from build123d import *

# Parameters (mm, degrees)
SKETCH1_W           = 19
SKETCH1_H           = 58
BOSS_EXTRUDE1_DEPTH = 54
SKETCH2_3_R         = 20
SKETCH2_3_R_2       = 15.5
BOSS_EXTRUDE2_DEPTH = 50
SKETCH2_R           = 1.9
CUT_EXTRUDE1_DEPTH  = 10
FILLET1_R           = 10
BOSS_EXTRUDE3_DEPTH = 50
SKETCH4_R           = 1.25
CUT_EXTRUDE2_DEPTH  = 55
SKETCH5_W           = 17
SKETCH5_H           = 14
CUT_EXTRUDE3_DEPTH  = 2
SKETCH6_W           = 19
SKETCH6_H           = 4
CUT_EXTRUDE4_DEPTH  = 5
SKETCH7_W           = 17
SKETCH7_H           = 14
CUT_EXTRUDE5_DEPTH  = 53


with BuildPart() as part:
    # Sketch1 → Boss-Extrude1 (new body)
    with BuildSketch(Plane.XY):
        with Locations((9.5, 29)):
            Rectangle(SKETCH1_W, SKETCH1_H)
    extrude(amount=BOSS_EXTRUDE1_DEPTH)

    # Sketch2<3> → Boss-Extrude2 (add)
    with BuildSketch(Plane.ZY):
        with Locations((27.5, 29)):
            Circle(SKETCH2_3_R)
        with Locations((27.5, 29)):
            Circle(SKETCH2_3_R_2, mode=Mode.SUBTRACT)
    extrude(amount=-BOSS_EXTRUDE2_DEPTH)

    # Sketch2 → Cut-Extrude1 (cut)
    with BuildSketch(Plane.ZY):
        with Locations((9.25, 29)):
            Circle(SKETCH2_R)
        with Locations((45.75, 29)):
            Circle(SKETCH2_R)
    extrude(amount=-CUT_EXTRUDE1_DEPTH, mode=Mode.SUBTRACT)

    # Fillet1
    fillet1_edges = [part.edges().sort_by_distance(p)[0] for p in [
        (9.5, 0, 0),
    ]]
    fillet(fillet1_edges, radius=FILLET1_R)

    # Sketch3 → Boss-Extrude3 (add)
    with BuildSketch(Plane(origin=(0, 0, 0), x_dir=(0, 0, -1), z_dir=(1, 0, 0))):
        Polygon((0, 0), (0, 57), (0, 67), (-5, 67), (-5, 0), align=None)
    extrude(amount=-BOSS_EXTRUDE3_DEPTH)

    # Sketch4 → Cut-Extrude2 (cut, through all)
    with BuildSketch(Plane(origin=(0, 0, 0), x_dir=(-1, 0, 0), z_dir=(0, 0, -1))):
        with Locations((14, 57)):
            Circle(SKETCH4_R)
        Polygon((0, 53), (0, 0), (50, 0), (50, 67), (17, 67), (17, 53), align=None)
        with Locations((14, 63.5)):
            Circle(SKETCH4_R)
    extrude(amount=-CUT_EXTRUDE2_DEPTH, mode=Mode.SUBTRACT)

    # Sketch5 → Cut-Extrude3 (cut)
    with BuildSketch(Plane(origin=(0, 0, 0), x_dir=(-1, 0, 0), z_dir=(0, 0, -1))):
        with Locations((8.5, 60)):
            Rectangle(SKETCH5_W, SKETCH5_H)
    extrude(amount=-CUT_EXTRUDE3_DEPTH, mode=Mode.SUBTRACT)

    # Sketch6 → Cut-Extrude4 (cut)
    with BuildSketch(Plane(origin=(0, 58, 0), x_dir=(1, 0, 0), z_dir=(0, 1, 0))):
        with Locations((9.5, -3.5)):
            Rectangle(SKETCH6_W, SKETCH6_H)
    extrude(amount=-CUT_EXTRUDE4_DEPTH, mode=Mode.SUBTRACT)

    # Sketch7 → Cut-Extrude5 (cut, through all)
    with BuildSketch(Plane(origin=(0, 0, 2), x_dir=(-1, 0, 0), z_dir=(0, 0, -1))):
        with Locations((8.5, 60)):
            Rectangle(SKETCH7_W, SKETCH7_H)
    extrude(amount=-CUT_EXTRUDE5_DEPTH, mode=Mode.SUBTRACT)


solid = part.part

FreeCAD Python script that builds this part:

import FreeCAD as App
import Part
import Sketcher
from FreeCAD import Vector


def edges_at(feature, points):
    """Names of the edges that pass closest to the given points."""
    edges = feature.Shape.Edges
    near = lambda p: min(range(len(edges)), key=lambda i: edges[i].distToShape(Part.Vertex(*p))[0])
    return sorted({f"Edge{near(p) + 1}" for p in points})


def add_polygon(sketch, points):
    """Adds a closed chain of lines whose ends are joined by coincident constraints."""
    first, n = sketch.GeometryCount, len(points)
    for a, b in zip(points, points[1:] + points[:1]):
        sketch.addGeometry(Part.LineSegment(App.Vector(*a, 0), App.Vector(*b, 0)), False)
    for i in range(n):
        sketch.addConstraint(Sketcher.Constraint("Coincident", first + i, 2, first + (i + 1) % n, 1))

doc = App.newDocument("Part")
params = doc.addObject("Spreadsheet::Sheet", "Params")
for row, (alias, value) in enumerate([
    ("sketch1_width", "19 mm"),
    ("sketch1_height", "58 mm"),
    ("pad1_length", "54 mm"),
    ("sketch2_diameter", "40 mm"),
    ("sketch2_diameter2", "31 mm"),
    ("pad2_length", "50 mm"),
    ("sketch3_diameter", "3.8 mm"),
    ("pocket1_length", "10 mm"),
    ("fillet_radius", "10 mm"),
    ("sketch4_width", "67 mm"),
    ("sketch4_height", "5 mm"),
    ("pad3_length", "50 mm"),
    ("sketch5_diameter", "2.5 mm"),
    ("sketch5_width", "50 mm"),
    ("sketch5_width2", "33 mm"),
    ("sketch5_height", "53 mm"),
    ("sketch5_height2", "67 mm"),
    ("sketch6_width", "17 mm"),
    ("sketch6_height", "14 mm"),
    ("pocket3_length", "2 mm"),
    ("sketch7_width", "19 mm"),
    ("sketch7_height", "4 mm"),
    ("pocket4_length", "5 mm"),
    ("sketch8_width", "17 mm"),
    ("sketch8_height", "14 mm"),
], start=1):
    params.set(f"A{row}", alias)
    params.set(f"B{row}", "=" + value)
    params.setAlias(f"B{row}", alias)

body = doc.addObject("PartDesign::Body", "Body")
body.AllowCompound = True

# Sketch on XY plane
sketch1 = body.newObject("Sketcher::SketchObject", "Sketch")
sketch1.AttachmentSupport = (doc.getObject("XY_Plane"), [""])
sketch1.MapMode = "FlatFace"
add_polygon(sketch1, [(0, 58), (0, 0), (19, 0), (19, 58)])  # lines 0-3
sketch1.addConstraint([
    Sketcher.Constraint("Vertical", 0),
    Sketcher.Constraint("Horizontal", 1),
    Sketcher.Constraint("Vertical", 2),
    Sketcher.Constraint("Horizontal", 3),
    Sketcher.Constraint("Coincident", 0, 2, -1, 1),
    Sketcher.Constraint("DistanceX", 1, 1, 1, 2, 19.0),
    Sketcher.Constraint("DistanceY", 0, 2, 0, 1, 58.0),
])
sketch1.setExpression("Constraints[9]", "Params.sketch1_width")
sketch1.setExpression("Constraints[10]", "Params.sketch1_height")
pad1 = body.newObject("PartDesign::Pad", "Pad")
pad1.Profile = sketch1
pad1.setExpression("Length", "Params.pad1_length")

# Sketch on YZ plane
sketch2 = body.newObject("Sketcher::SketchObject", "Sketch001")
sketch2.AttachmentSupport = (doc.getObject("YZ_Plane"), [""])
sketch2.MapMode = "FlatFace"
sketch2.addGeometry([
    Part.Circle(Vector(29, 28, 0), Vector(0, 0, 1), 20),
    Part.Circle(Vector(29, 28, 0), Vector(0, 0, 1), 16),
], False)
sketch2.addConstraint([
    Sketcher.Constraint("Coincident", 1, 3, 0, 3),
    Sketcher.Constraint("Diameter", 0, 40.0),
    Sketcher.Constraint("Diameter", 1, 31.0),
    Sketcher.Constraint("DistanceX", -1, 1, 0, 3, 29.0),
    Sketcher.Constraint("DistanceY", -1, 1, 0, 3, 27.5),
])
sketch2.setExpression("Constraints[1]", "Params.sketch2_diameter")
sketch2.setExpression("Constraints[2]", "Params.sketch2_diameter2")
pad2 = body.newObject("PartDesign::Pad", "Pad001")
pad2.Profile = sketch2
pad2.setExpression("Length", "Params.pad2_length")

# Sketch on YZ plane
sketch3 = body.newObject("Sketcher::SketchObject", "Sketch002")
sketch3.AttachmentSupport = (doc.getObject("YZ_Plane"), [""])
sketch3.MapMode = "FlatFace"
sketch3.addGeometry([
    Part.Circle(Vector(29, 9.2, 0), Vector(0, 0, 1), 1.9),
    Part.Circle(Vector(29, 45.8, 0), Vector(0, 0, 1), 1.9),
], False)
sketch3.addConstraint([
    Sketcher.Constraint("Equal", 0, 1),
    Sketcher.Constraint("Vertical", 0, 3, 1, 3),
    Sketcher.Constraint("Diameter", 0, 3.8),
    Sketcher.Constraint("DistanceX", -1, 1, 0, 3, 29.0),
    Sketcher.Constraint("DistanceY", 0, 3, 1, 3, 36.5),
    Sketcher.Constraint("DistanceY", -1, 1, 0, 3, 9.25),
])
sketch3.setExpression("Constraints[2]", "Params.sketch3_diameter")
pocket1 = body.newObject("PartDesign::Pocket", "Pocket")
pocket1.Profile = sketch3
pocket1.setExpression("Length", "Params.pocket1_length")
pocket1.Reversed = True
doc.recompute()

fillet = body.newObject("PartDesign::Fillet", "Fillet")
fillet.Base = (pocket1, edges_at(pocket1, [(9.5, 0, 0)]))
fillet.setExpression("Radius", "Params.fillet_radius")

# Sketch on YZ plane
sketch4 = body.newObject("Sketcher::SketchObject", "Sketch003")
sketch4.AttachmentSupport = (doc.getObject("YZ_Plane"), [""])
sketch4.MapMode = "FlatFace"
add_polygon(sketch4, [(0, 0), (67, 0), (67, 5), (0, 5)])  # lines 0-3
sketch4.addConstraint([
    Sketcher.Constraint("Horizontal", 0),
    Sketcher.Constraint("Vertical", 1),
    Sketcher.Constraint("Horizontal", 2),
    Sketcher.Constraint("Vertical", 3),
    Sketcher.Constraint("Coincident", 3, 2, -1, 1),
    Sketcher.Constraint("DistanceX", 0, 1, 0, 2, 67.0),
    Sketcher.Constraint("DistanceY", 1, 1, 1, 2, 5.0),
])
sketch4.setExpression("Constraints[9]", "Params.sketch4_width")
sketch4.setExpression("Constraints[10]", "Params.sketch4_height")
pad3 = body.newObject("PartDesign::Pad", "Pad002")
pad3.Profile = sketch4
pad3.setExpression("Length", "Params.pad3_length")
pad3.Reversed = True

# Sketch on XY plane
sketch5 = body.newObject("Sketcher::SketchObject", "Sketch004")
sketch5.AttachmentSupport = (doc.getObject("XY_Plane"), [""])
sketch5.MapMode = "FlatFace"
sketch5.addGeometry(Part.Circle(Vector(-14, 57, 0), Vector(0, 0, 1), 1.2), False)  # 0
add_polygon(sketch5, [(0, 53), (0, 0), (-50, 0), (-50, 67), (-17, 67), (-17, 53)])  # lines 1-6
sketch5.addGeometry(Part.Circle(Vector(-14, 63.5, 0), Vector(0, 0, 1), 1.2), False)  # 7
sketch5.addConstraint([
    Sketcher.Constraint("Vertical", 1),
    Sketcher.Constraint("Horizontal", 2),
    Sketcher.Constraint("Vertical", 3),
    Sketcher.Constraint("Horizontal", 4),
    Sketcher.Constraint("Vertical", 5),
    Sketcher.Constraint("Horizontal", 6),
    Sketcher.Constraint("Coincident", 1, 2, -1, 1),
    Sketcher.Constraint("Equal", 0, 7),
    Sketcher.Constraint("Vertical", 0, 3, 7, 3),
    Sketcher.Constraint("Diameter", 0, 2.5),
    Sketcher.Constraint("DistanceX", 2, 2, 2, 1, 50.0),
    Sketcher.Constraint("DistanceX", 4, 1, 4, 2, 33.0),
    Sketcher.Constraint("DistanceY", 1, 2, 1, 1, 53.0),
    Sketcher.Constraint("DistanceY", 3, 1, 3, 2, 67.0),
    Sketcher.Constraint("DistanceX", 0, 3, -1, 1, 14.0),
    Sketcher.Constraint("DistanceY", -1, 1, 0, 3, 57.0),
    Sketcher.Constraint("DistanceY", -1, 1, 7, 3, 63.5),
])
sketch5.setExpression("Constraints[15]", "Params.sketch5_diameter")
sketch5.setExpression("Constraints[16]", "Params.sketch5_width")
sketch5.setExpression("Constraints[17]", "Params.sketch5_width2")
sketch5.setExpression("Constraints[18]", "Params.sketch5_height")
sketch5.setExpression("Constraints[19]", "Params.sketch5_height2")
pocket2 = body.newObject("PartDesign::Pocket", "Pocket001")
pocket2.Profile = sketch5
pocket2.Type = "ThroughAll"
pocket2.Reversed = True

# Sketch on XY plane
sketch6 = body.newObject("Sketcher::SketchObject", "Sketch005")
sketch6.AttachmentSupport = (doc.getObject("XY_Plane"), [""])
sketch6.MapMode = "FlatFace"
add_polygon(sketch6, [(0, 67), (0, 53), (-17, 53), (-17, 67)])  # lines 0-3
sketch6.addConstraint([
    Sketcher.Constraint("Vertical", 0),
    Sketcher.Constraint("Horizontal", 1),
    Sketcher.Constraint("Vertical", 2),
    Sketcher.Constraint("Horizontal", 3),
    Sketcher.Constraint("PointOnObject", 0, 2, -2),
    Sketcher.Constraint("DistanceX", 1, 2, 1, 1, 17.0),
    Sketcher.Constraint("DistanceY", 0, 2, 0, 1, 14.0),
    Sketcher.Constraint("DistanceY", -1, 1, 0, 2, 53.0),
])
sketch6.setExpression("Constraints[9]", "Params.sketch6_width")
sketch6.setExpression("Constraints[10]", "Params.sketch6_height")
pocket3 = body.newObject("PartDesign::Pocket", "Pocket002")
pocket3.Profile = sketch6
pocket3.setExpression("Length", "Params.pocket3_length")
pocket3.Reversed = True

# Sketch on XZ plane
sketch7 = body.newObject("Sketcher::SketchObject", "Sketch006")
sketch7.AttachmentSupport = (doc.getObject("XZ_Plane"), [""])
sketch7.MapMode = "FlatFace"
sketch7.AttachmentOffset = App.Placement(Vector(0, 0, -58), App.Rotation())
add_polygon(sketch7, [(0, 1.5), (0, 5.5), (19, 5.5), (19, 1.5)])  # lines 0-3
sketch7.addConstraint([
    Sketcher.Constraint("Vertical", 0),
    Sketcher.Constraint("Horizontal", 1),
    Sketcher.Constraint("Vertical", 2),
    Sketcher.Constraint("Horizontal", 3),
    Sketcher.Constraint("PointOnObject", 0, 2, -2),
    Sketcher.Constraint("DistanceX", 1, 1, 1, 2, 19.0),
    Sketcher.Constraint("DistanceY", 0, 1, 0, 2, 4.0),
    Sketcher.Constraint("DistanceY", -1, 1, 0, 2, 5.5),
])
sketch7.setExpression("Constraints[9]", "Params.sketch7_width")
sketch7.setExpression("Constraints[10]", "Params.sketch7_height")
pocket4 = body.newObject("PartDesign::Pocket", "Pocket003")
pocket4.Profile = sketch7
pocket4.setExpression("Length", "Params.pocket4_length")
pocket4.Reversed = True

# Sketch on XY plane
sketch8 = body.newObject("Sketcher::SketchObject", "Sketch007")
sketch8.AttachmentSupport = (doc.getObject("XY_Plane"), [""])
sketch8.MapMode = "FlatFace"
sketch8.AttachmentOffset = App.Placement(Vector(0, 0, 2), App.Rotation())
add_polygon(sketch8, [(0, 67), (0, 53), (-17, 53), (-17, 67)])  # lines 0-3
sketch8.addConstraint([
    Sketcher.Constraint("Vertical", 0),
    Sketcher.Constraint("Horizontal", 1),
    Sketcher.Constraint("Vertical", 2),
    Sketcher.Constraint("Horizontal", 3),
    Sketcher.Constraint("PointOnObject", 0, 2, -2),
    Sketcher.Constraint("DistanceX", 1, 2, 1, 1, 17.0),
    Sketcher.Constraint("DistanceY", 0, 2, 0, 1, 14.0),
    Sketcher.Constraint("DistanceY", -1, 1, 0, 2, 53.0),
])
sketch8.setExpression("Constraints[9]", "Params.sketch8_width")
sketch8.setExpression("Constraints[10]", "Params.sketch8_height")
pocket5 = body.newObject("PartDesign::Pocket", "Pocket004")
pocket5.Profile = sketch8
pocket5.Type = "ThroughAll"
pocket5.Reversed = True

doc.recompute()
